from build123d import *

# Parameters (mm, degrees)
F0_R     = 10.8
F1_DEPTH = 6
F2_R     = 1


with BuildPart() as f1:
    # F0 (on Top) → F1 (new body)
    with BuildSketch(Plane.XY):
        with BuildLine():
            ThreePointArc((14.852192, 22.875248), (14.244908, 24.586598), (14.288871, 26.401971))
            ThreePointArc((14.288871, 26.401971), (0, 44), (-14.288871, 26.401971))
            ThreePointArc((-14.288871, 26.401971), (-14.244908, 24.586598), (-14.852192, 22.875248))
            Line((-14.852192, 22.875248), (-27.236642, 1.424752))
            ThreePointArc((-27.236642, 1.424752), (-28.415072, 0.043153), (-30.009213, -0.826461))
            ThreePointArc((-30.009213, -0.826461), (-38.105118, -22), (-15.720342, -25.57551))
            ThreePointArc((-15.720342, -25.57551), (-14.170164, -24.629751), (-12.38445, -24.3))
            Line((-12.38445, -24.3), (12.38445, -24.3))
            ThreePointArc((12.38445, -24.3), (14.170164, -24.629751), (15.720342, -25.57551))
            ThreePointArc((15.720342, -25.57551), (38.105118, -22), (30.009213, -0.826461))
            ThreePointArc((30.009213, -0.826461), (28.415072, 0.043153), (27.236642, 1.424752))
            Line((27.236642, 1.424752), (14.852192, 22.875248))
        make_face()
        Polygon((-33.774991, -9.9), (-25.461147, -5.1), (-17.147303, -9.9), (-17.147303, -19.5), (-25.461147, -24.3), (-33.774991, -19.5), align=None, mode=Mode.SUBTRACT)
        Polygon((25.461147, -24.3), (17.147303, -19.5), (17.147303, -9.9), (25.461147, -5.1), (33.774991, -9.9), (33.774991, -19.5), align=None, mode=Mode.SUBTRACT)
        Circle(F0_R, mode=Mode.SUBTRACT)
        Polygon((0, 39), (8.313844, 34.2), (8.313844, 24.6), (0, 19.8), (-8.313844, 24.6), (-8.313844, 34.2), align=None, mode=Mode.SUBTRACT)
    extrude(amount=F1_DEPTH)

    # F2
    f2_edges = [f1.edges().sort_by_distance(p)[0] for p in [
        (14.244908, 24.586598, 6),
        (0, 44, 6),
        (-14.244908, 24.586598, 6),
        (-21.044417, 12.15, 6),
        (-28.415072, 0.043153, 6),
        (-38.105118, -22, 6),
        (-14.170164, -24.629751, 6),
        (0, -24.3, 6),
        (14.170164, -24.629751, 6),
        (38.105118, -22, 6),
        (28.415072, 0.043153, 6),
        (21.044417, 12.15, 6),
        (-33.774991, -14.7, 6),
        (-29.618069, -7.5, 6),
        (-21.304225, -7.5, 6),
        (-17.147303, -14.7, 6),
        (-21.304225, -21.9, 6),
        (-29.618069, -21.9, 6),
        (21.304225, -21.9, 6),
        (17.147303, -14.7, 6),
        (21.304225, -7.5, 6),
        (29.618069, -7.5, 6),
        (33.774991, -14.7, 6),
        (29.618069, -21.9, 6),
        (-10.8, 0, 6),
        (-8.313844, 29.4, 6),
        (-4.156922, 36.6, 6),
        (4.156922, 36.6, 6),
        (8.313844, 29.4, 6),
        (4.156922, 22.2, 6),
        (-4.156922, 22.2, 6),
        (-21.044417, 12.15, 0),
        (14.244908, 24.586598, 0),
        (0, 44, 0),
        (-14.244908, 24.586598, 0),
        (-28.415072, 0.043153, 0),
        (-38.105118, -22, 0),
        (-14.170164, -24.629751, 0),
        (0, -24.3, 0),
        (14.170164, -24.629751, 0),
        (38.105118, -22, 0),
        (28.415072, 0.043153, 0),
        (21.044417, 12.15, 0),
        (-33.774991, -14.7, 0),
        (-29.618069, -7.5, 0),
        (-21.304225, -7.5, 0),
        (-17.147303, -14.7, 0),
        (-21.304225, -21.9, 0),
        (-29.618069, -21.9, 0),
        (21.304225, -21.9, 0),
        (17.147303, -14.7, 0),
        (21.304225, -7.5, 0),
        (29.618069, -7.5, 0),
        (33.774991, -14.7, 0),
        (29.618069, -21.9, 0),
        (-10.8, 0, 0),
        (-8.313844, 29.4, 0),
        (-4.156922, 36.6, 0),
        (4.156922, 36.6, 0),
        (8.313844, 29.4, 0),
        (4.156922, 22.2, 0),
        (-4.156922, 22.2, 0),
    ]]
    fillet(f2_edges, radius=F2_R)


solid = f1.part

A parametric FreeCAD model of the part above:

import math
import FreeCAD as App
import Part
import Sketcher
from FreeCAD import Vector
Q = App.Units.Quantity


def edges_at(feature, points):
    """Names of the edges that pass closest to the given points."""
    edges = feature.Shape.Edges
    near = lambda p: min(range(len(edges)), key=lambda i: edges[i].distToShape(Part.Vertex(*p))[0])
    return sorted({f"Edge{near(p) + 1}" for p in points})


def add_polygon(sketch, points):
    """Adds a closed chain of lines whose ends are joined by coincident constraints."""
    first, n = sketch.GeometryCount, len(points)
    for a, b in zip(points, points[1:] + points[:1]):
        sketch.addGeometry(Part.LineSegment(App.Vector(*a, 0), App.Vector(*b, 0)), False)
    for i in range(n):
        sketch.addConstraint(Sketcher.Constraint("Coincident", first + i, 2, first + (i + 1) % n, 1))

doc = App.newDocument("Part")
body = doc.addObject("PartDesign::Body", "Body")

sketch1 = doc.addObject("Sketcher::SketchObject", "Sketch")
body.addObject(sketch1)
sketch1.AttachmentSupport = (doc.XY_Plane, [""])
sketch1.MapMode = "FlatFace"
sketch1.addGeometry(Part.ArcOfCircle(Part.Circle(Vector(19.2, 25.4, 0), Vector(0, 0, 1), 5), math.radians(168), math.radians(210)), False)
sketch1.addGeometry(Part.ArcOfCircle(Part.Circle(Vector(0, 29.4, 0), Vector(0, 0, 1), 14.6), math.radians(-12), math.radians(192)), False)
sketch1.addGeometry(Part.ArcOfCircle(Part.Circle(Vector(-19.2, 25.4, 0), Vector(0, 0, 1), 5), math.radians(-30), math.radians(12)), False)
sketch1.addGeometry(Part.LineSegment(Vector(-14.9, 22.9, 0), Vector(-27.2, 1.4, 0)), False)
sketch1.addGeometry(Part.ArcOfCircle(Part.Circle(Vector(-31.6, 3.9, 0), Vector(0, 0, 1), 5), math.radians(-72), math.radians(-30)), False)
sketch1.addGeometry(Part.ArcOfCircle(Part.Circle(Vector(-25.5, -14.7, 0), Vector(0, 0, 1), 14.6), math.radians(108), math.radians(312)), False)
sketch1.addGeometry(Part.ArcOfCircle(Part.Circle(Vector(-12.4, -29.3, 0), Vector(0, 0, 1), 5), math.radians(90), math.radians(132)), False)
sketch1.addGeometry(Part.LineSegment(Vector(-12.4, -24.3, 0), Vector(12.4, -24.3, 0)), False)
sketch1.addGeometry(Part.ArcOfCircle(Part.Circle(Vector(12.4, -29.3, 0), Vector(0, 0, 1), 5), math.radians(48), math.radians(90)), False)
sketch1.addGeometry(Part.ArcOfCircle(Part.Circle(Vector(25.5, -14.7, 0), Vector(0, 0, 1), 14.6), math.radians(-132), math.radians(72)), False)
sketch1.addGeometry(Part.ArcOfCircle(Part.Circle(Vector(31.6, 3.9, 0), Vector(0, 0, 1), 5), math.radians(-150), math.radians(-108)), False)
sketch1.addGeometry(Part.LineSegment(Vector(27.2, 1.4, 0), Vector(14.9, 22.9, 0)), False)
add_polygon(sketch1, [(-33.8, -19.5), (-33.8, -9.9), (-25.5, -5.1), (-17.1, -9.9), (-17.1, -19.5), (-25.5, -24.3)])
add_polygon(sketch1, [(33.8, -19.5), (25.5, -24.3), (17.1, -19.5), (17.1, -9.9), (25.5, -5.1), (33.8, -9.9)])
sketch1.addGeometry(Part.Circle(Vector(0, 0, 0), Vector(0, 0, 1), 10.8), False)
add_polygon(sketch1, [(-8.3, 34.2), (0, 39), (8.3, 34.2), (8.3, 24.6), (0, 19.8), (-8.3, 24.6)])
sketch1.addConstraint([
    Sketcher.Constraint("Tangent", 0, 1, 1, 1),
    Sketcher.Constraint("Tangent", 1, 2, 2, 2),
    Sketcher.Constraint("Tangent", 2, 1, 3, 1),
    Sketcher.Constraint("Tangent", 3, 2, 4, 2),
    Sketcher.Constraint("Tangent", 4, 1, 5, 1),
    Sketcher.Constraint("Tangent", 5, 2, 6, 2),
    Sketcher.Constraint("Tangent", 6, 1, 7, 1),
    Sketcher.Constraint("Tangent", 7, 2, 8, 2),
    Sketcher.Constraint("Tangent", 8, 1, 9, 1),
    Sketcher.Constraint("Tangent", 9, 2, 10, 2),
    Sketcher.Constraint("Tangent", 10, 1, 11, 1),
    Sketcher.Constraint("Tangent", 11, 2, 0, 2),
    Sketcher.Constraint("Horizontal", 7),
    Sketcher.Constraint("Vertical", 12),
    Sketcher.Constraint("Vertical", 15),
    Sketcher.Constraint("Vertical", 20),
    Sketcher.Constraint("Vertical", 23),
    Sketcher.Constraint("Vertical", 27),
    Sketcher.Constraint("Vertical", 30),
    Sketcher.Constraint("Coincident", 24, 3, -1, 1),
    Sketcher.Constraint("Equal", 0, 2),
    Sketcher.Constraint("Equal", 1, 5),
    Sketcher.Constraint("Equal", 2, 6),
    Sketcher.Constraint("Equal", 6, 8),
    Sketcher.Constraint("Equal", 5, 9),
    Sketcher.Constraint("Equal", 4, 10),
    Sketcher.Constraint("Symmetric", 0, 3, 2, 3, -2),
    Sketcher.Constraint("Symmetric", 5, 3, 9, 3, -2),
    Sketcher.Constraint("Symmetric", 16, 2, 18, 2, -2),
    Sketcher.Constraint("Symmetric", 15, 2, 19, 2, -2),
    Sketcher.Constraint("Symmetric", 13, 2, 21, 2, -2),
    Sketcher.Constraint("Symmetric", 12, 2, 22, 2, -2),
    Sketcher.Constraint("Symmetric", 27, 2, 29, 2, -2),
    Sketcher.Constraint("PointOnObject", 25, 2, -2),
    Sketcher.Constraint("PointOnObject", 28, 2, -2),
    Sketcher.Constraint("Perpendicular", 11, 13),
    Sketcher.Constraint("Perpendicular", 3, 14),
    Sketcher.Constraint("Parallel", 13, 16),
    Sketcher.Constraint("Parallel", 14, 17),
    Sketcher.Constraint("Parallel", 16, 18),
    Sketcher.Constraint("Parallel", 17, 19),
    Sketcher.Constraint("Parallel", 18, 21),
    Sketcher.Constraint("Parallel", 21, 25),
    Sketcher.Constraint("Parallel", 22, 26),
    Sketcher.Constraint("Parallel", 25, 28),
    Sketcher.Constraint("Horizontal", 12, 2, 14, 2),
    Sketcher.Constraint("Horizontal", 7, 2, 16, 2),
    Sketcher.Constraint("Horizontal", 15, 2, 17, 2),
    Sketcher.Constraint("Vertical", 5, 3, 13, 2),
    Sketcher.Constraint("Equal", 23, 27),
    Sketcher.Constraint("Equal", 22, 25),
    Sketcher.Constraint("Radius", 0, 5.0),
    Sketcher.Constraint("Diameter", 24, 21.6),
    Sketcher.Constraint("Radius", 1, 14.6),
    Sketcher.Constraint("Angle", 3, Q("-120.000001 deg")),
    Sketcher.Constraint("DistanceY", 12, 1, 12, 2, 9.6),
    Sketcher.Constraint("DistanceY", -1, 1, 25, 2, 39.0),
    Sketcher.Constraint("Distance", 13, 9.6),
    Sketcher.Constraint("DistanceY", -1, 1, 1, 3, 29.4),
    Sketcher.Constraint("DistanceY", 5, 3, -1, 1, 14.7),
    Sketcher.Constraint("DistanceY", 6, 3, -1, 1, 29.300001),
    Sketcher.Constraint("DistanceX", 7, 1, 7, 2, 24.7689),
    Sketcher.Constraint("Radius", 4, 4.999997),
    Sketcher.Constraint("Distance", 3, 24.768899),
])
pad1 = doc.addObject("PartDesign::Pad", "Pad")
body.addObject(pad1)
pad1.Profile = sketch1
pad1.Length = 6
doc.recompute()

fillet = doc.addObject("PartDesign::Fillet", "Fillet")
body.addObject(fillet)
fillet.Base = (pad1, edges_at(pad1, [
    (14.245, 24.587, 6),
    (0, 44, 6),
    (-14.245, 24.587, 6),
    (-21.044, 12.15, 6),
    (-28.415, 0.043, 6),
    (-38.105, -22, 6),
    (-14.17, -24.63, 6),
    (0, -24.3, 6),
    (14.17, -24.63, 6),
    (38.105, -22, 6),
    (28.415, 0.043, 6),
    (21.044, 12.15, 6),
    (-33.775, -14.7, 6),
    (-29.618, -7.5, 6),
    (-21.304, -7.5, 6),
    (-17.147, -14.7, 6),
    (-21.304, -21.9, 6),
    (-29.618, -21.9, 6),
    (21.304, -21.9, 6),
    (17.147, -14.7, 6),
    (21.304, -7.5, 6),
    (29.618, -7.5, 6),
    (33.775, -14.7, 6),
    (29.618, -21.9, 6),
    (-10.8, 0, 6),
    (-8.314, 29.4, 6),
    (-4.157, 36.6, 6),
    (4.157, 36.6, 6),
    (8.314, 29.4, 6),
    (4.157, 22.2, 6),
    (-4.157, 22.2, 6),
    (-21.044, 12.15, 0),
    (14.245, 24.587, 0),
    (0, 44, 0),
    (-14.245, 24.587, 0),
    (-28.415, 0.043, 0),
    (-38.105, -22, 0),
    (-14.17, -24.63, 0),
    (0, -24.3, 0),
    (14.17, -24.63, 0),
    (38.105, -22, 0),
    (28.415, 0.043, 0),
    (21.044, 12.15, 0),
    (-33.775, -14.7, 0),
    (-29.618, -7.5, 0),
    (-21.304, -7.5, 0),
    (-17.147, -14.7, 0),
    (-21.304, -21.9, 0),
    (-29.618, -21.9, 0),
    (21.304, -21.9, 0),
    (17.147, -14.7, 0),
    (21.304, -7.5, 0),
    (29.618, -7.5, 0),
    (33.775, -14.7, 0),
    (29.618, -21.9, 0),
    (-10.8, 0, 0),
    (-8.314, 29.4, 0),
    (-4.157, 36.6, 0),
    (4.157, 36.6, 0),
    (8.314, 29.4, 0),
    (4.157, 22.2, 0),
    (-4.157, 22.2, 0),
]))
fillet.Radius = 1

doc.recompute()
